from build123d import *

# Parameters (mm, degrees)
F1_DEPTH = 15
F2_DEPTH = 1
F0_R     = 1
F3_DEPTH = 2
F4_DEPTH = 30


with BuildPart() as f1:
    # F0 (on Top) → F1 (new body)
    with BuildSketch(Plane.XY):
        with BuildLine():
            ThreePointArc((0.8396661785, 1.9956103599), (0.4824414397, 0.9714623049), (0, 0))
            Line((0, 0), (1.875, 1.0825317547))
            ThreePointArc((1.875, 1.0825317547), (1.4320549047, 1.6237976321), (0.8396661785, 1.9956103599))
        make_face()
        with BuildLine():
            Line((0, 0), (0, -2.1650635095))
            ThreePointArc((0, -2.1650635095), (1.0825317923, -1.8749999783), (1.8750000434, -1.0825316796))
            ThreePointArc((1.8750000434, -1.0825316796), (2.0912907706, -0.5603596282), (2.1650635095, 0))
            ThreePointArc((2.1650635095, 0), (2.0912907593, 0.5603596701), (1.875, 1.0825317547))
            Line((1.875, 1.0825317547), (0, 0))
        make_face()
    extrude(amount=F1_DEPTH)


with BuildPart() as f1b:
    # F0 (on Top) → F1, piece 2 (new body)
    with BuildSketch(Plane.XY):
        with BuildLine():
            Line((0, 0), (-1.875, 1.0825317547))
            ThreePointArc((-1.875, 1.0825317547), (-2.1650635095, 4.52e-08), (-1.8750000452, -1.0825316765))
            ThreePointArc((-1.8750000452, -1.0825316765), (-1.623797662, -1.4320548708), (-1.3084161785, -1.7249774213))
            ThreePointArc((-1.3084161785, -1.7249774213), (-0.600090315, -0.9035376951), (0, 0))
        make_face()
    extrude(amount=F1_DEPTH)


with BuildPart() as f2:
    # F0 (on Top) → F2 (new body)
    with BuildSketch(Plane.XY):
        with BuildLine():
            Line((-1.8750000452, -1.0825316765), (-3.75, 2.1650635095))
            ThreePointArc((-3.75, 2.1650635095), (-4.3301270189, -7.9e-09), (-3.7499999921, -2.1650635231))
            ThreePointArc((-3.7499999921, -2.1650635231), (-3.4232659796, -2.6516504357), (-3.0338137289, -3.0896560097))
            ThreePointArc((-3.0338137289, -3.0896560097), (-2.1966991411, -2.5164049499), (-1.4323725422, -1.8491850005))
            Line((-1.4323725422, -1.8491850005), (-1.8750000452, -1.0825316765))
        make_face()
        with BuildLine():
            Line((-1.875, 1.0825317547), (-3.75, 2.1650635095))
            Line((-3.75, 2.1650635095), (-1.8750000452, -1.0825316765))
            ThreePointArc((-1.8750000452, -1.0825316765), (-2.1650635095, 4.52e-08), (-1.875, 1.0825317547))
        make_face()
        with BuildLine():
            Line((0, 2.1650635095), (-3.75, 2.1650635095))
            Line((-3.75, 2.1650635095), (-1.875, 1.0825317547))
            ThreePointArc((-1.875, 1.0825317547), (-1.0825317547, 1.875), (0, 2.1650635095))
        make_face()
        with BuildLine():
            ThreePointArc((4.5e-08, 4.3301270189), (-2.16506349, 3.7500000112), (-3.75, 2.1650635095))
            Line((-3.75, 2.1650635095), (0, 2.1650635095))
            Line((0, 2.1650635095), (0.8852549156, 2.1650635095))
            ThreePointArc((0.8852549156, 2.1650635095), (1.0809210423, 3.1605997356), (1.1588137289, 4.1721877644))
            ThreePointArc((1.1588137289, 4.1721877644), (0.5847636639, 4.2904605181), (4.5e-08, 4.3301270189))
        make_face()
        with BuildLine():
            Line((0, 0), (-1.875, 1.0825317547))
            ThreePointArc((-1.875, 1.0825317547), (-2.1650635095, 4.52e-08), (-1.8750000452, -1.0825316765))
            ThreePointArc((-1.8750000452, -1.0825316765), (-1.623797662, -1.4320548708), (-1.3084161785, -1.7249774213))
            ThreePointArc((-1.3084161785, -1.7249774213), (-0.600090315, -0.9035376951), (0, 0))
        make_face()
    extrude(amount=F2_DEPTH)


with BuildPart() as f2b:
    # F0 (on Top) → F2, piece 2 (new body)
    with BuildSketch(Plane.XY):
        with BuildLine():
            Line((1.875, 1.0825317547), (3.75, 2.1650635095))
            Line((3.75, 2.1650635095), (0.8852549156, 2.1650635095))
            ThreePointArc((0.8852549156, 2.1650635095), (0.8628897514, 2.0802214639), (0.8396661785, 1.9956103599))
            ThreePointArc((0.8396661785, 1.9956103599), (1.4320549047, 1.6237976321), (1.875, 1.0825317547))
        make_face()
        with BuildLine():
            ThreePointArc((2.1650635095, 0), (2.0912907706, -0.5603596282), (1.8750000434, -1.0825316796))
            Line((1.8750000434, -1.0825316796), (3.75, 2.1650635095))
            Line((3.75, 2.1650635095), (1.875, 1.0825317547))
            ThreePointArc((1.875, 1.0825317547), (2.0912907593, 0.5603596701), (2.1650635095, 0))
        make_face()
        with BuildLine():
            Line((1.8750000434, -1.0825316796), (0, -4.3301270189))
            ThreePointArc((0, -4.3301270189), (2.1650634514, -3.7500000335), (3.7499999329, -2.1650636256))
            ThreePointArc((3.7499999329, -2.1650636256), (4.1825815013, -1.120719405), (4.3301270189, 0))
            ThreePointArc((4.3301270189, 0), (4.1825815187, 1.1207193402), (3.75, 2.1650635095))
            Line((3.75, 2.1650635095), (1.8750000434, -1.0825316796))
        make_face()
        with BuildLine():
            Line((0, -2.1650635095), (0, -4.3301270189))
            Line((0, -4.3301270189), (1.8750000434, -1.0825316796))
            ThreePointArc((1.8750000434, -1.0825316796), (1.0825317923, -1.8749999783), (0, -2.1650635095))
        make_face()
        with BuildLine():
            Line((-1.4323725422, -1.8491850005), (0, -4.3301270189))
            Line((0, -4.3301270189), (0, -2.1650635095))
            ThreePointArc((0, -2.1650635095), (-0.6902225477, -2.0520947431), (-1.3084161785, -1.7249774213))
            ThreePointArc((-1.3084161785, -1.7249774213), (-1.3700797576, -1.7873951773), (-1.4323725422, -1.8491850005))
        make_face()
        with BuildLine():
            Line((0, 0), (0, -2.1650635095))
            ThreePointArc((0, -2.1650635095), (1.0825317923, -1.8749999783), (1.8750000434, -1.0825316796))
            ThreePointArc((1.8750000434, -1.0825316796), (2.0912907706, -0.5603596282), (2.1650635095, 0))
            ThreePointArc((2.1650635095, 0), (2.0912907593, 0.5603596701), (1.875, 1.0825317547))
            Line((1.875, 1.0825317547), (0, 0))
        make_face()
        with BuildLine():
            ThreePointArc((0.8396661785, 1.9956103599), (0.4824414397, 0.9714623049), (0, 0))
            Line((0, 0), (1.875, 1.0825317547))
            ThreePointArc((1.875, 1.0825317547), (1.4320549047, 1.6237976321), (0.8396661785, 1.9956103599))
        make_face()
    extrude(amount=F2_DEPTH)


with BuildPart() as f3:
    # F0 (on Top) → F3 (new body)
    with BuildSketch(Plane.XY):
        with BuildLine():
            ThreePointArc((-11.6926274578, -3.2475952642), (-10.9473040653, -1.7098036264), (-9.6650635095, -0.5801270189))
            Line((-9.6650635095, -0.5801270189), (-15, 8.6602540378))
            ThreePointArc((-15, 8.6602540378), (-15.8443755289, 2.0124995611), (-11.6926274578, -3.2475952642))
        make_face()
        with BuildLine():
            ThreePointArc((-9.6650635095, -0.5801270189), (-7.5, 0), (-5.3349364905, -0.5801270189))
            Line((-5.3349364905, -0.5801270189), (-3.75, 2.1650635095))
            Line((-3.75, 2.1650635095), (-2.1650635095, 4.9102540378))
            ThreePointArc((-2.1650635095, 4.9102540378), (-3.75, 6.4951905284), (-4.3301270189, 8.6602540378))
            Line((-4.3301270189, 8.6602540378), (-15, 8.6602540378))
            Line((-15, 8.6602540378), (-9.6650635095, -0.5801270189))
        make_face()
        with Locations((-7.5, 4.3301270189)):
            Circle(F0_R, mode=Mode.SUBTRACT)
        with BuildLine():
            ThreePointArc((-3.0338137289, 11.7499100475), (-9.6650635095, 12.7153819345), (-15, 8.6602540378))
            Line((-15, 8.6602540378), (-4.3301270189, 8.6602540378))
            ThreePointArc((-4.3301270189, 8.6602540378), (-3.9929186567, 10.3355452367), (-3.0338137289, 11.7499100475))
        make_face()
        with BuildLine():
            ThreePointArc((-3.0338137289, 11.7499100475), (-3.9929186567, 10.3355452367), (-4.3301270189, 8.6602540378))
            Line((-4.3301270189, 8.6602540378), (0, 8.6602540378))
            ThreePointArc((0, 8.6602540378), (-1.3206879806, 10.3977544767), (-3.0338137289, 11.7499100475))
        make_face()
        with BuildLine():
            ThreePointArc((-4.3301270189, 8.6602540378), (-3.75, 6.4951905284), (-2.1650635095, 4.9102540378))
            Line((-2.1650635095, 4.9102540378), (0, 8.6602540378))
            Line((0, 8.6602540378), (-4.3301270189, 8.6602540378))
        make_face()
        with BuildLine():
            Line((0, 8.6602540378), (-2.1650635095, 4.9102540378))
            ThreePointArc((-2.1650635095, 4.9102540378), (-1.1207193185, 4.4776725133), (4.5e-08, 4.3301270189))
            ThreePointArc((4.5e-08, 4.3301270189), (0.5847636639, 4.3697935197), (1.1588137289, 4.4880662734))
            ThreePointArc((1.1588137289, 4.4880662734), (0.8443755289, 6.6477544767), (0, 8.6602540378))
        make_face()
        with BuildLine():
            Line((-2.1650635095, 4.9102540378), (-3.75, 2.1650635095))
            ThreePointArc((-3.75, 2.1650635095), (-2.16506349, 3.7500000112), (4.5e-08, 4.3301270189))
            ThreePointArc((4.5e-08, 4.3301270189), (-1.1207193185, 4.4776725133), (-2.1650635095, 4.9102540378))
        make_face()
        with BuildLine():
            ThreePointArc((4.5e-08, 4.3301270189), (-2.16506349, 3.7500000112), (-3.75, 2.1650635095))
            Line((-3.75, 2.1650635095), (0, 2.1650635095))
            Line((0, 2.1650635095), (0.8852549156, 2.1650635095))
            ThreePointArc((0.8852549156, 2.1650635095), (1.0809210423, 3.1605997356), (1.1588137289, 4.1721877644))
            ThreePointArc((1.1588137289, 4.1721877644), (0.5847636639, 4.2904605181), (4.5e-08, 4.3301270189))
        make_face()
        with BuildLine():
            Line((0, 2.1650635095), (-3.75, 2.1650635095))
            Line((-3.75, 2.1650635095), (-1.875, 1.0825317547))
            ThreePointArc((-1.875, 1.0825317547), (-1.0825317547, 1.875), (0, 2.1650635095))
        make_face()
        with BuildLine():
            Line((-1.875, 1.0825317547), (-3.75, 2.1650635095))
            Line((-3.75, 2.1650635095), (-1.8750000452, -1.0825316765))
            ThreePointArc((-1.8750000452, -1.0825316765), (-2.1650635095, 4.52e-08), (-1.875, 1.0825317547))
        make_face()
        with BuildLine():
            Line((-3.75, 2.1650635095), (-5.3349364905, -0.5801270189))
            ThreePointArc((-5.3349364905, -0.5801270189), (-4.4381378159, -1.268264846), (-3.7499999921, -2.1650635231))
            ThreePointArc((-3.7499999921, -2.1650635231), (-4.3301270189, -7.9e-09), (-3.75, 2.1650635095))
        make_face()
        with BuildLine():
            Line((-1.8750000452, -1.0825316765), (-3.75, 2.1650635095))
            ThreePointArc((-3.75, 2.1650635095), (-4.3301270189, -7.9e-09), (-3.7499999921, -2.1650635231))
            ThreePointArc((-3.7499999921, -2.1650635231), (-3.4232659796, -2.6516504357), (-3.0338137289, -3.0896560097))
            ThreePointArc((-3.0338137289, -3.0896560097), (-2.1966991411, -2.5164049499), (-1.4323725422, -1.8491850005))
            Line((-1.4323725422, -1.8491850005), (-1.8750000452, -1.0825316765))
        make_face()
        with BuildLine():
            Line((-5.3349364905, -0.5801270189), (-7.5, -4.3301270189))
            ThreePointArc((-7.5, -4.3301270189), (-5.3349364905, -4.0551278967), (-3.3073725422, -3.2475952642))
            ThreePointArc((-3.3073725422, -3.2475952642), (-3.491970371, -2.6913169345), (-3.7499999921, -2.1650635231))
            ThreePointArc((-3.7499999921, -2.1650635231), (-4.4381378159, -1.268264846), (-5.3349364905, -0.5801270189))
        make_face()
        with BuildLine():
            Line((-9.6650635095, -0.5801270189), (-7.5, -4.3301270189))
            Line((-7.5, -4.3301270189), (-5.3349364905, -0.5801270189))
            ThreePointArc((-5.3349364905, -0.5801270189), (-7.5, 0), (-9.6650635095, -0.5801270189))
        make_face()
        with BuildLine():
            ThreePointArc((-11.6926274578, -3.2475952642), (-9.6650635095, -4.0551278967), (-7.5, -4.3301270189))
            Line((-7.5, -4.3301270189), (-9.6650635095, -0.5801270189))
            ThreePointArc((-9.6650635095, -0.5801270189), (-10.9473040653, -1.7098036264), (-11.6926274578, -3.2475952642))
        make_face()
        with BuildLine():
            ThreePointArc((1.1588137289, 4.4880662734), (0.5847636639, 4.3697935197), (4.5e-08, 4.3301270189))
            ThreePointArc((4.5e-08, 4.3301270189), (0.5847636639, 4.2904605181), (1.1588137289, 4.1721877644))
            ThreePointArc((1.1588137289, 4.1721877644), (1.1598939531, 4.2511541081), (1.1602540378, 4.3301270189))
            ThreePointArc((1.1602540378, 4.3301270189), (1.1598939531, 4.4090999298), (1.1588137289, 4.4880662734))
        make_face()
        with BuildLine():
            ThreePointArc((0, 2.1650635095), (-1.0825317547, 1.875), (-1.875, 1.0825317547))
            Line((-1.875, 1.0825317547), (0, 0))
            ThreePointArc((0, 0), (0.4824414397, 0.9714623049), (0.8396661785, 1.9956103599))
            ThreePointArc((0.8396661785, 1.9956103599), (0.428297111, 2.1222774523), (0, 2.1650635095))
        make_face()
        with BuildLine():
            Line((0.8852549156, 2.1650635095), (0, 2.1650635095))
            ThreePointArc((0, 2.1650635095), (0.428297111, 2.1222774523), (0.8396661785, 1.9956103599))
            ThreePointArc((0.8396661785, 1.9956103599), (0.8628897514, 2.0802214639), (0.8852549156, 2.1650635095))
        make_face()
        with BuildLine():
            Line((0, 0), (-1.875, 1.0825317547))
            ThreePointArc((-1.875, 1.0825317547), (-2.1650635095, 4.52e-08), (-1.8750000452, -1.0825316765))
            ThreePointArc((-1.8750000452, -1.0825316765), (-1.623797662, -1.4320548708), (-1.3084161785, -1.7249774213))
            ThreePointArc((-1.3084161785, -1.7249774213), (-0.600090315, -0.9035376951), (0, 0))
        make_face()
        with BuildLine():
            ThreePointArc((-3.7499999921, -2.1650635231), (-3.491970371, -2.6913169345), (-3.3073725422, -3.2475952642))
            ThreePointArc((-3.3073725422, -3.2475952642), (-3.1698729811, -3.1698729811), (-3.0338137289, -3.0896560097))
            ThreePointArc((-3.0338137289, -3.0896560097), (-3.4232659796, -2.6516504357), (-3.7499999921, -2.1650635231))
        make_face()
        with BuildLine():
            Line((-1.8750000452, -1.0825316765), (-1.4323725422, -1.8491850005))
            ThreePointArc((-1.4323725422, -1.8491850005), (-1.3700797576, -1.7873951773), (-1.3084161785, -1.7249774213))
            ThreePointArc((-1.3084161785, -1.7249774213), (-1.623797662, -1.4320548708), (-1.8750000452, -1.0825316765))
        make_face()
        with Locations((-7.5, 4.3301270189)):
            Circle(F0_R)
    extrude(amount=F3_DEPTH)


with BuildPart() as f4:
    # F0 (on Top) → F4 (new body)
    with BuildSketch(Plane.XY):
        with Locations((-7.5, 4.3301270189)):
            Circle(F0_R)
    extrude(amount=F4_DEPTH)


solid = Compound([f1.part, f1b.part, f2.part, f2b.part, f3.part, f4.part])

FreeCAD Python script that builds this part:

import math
import FreeCAD as App
import Part
import Sketcher

V = App.Vector
Q = App.Units.Quantity

doc = App.newDocument("Part")
body = doc.addObject("PartDesign::Body", "Body")

sketch1 = body.newObject("Sketcher::SketchObject", "Sketch")
sketch1.AttachmentSupport = (doc.getObject("XY_Plane"), [""])
sketch1.MapMode = "FlatFace"
sketch1.addGeometry([
    Part.ArcOfCircle(Part.Circle(V(-7.5, 4.3, 0), V(0, 0, 1), 8.7), math.radians(-30), math.radians(-15.64)),
    Part.LineSegment(V(0, 0, 0), V(0, -2.2, 0)),
    Part.ArcOfCircle(Part.Circle(V(0, 0, 0), V(0, 0, 1), 2.2), math.radians(-90), math.radians(-30)),
    Part.ArcOfCircle(Part.Circle(V(0, 0, 0), V(0, 0, 1), 2.2), math.radians(-30), math.radians(0)),
    Part.ArcOfCircle(Part.Circle(V(0, 0, 0), V(0, 0, 1), 2.2), math.radians(0), math.radians(30)),
    Part.ArcOfCircle(Part.Circle(V(0, 0, 0), V(0, 0, 1), 2.2), math.radians(30), math.radians(67)),
], False)
sketch1.addConstraint([
    Sketcher.Constraint("Coincident", 0, 1, 1, 1),
    Sketcher.Constraint("Coincident", 1, 2, 2, 1),
    Sketcher.Constraint("Tangent", 2, 2, 3, 1),
    Sketcher.Constraint("Tangent", 3, 2, 4, 1),
    Sketcher.Constraint("Tangent", 4, 2, 5, 1),
    Sketcher.Constraint("Coincident", 5, 2, 0, 2),
    Sketcher.Constraint("Vertical", 1),
    Sketcher.Constraint("Coincident", 2, 3, -1, 1),
    Sketcher.Constraint("Coincident", 4, 3, -1, 1),
    Sketcher.Constraint("Coincident", 0, 1, -1, 1),
    Sketcher.Constraint("Equal", 4, 5),
    Sketcher.Constraint("PointOnObject", 3, 2, -1),
    Sketcher.Constraint("Vertical", 2, 2, 4, 2),
    Sketcher.Constraint("DistanceX", 0, 3, -1, 1, Q("7.5 mm")),
    Sketcher.Constraint("DistanceX", -1, 1, 2, 2, Q("1.875 mm")),
    Sketcher.Constraint("Radius", 0, Q("8.660254 mm")),
    Sketcher.Constraint("Radius", 2, Q("2.165064 mm")),
])
pad1 = body.newObject("PartDesign::Pad", "Pad")
pad1.Profile = sketch1
pad1.Length = 15
body2 = doc.addObject("PartDesign::Body", "Body001")

sketch2 = body2.newObject("Sketcher::SketchObject", "Sketch001")
sketch2.AttachmentSupport = (doc.getObject("XY_Plane001"), [""])
sketch2.MapMode = "FlatFace"
sketch2.addGeometry([
    Part.LineSegment(V(0, 0, 0), V(-1.9, 1.1, 0)),
    Part.ArcOfCircle(Part.Circle(V(0, 0, 0), V(0, 0, 1), 2.2), math.radians(150), math.radians(233)),
    Part.ArcOfCircle(Part.Circle(V(-7.5, 4.3, 0), V(0, 0, 1), 8.7), math.radians(-44.36), math.radians(-30)),
], False)
sketch2.addConstraint([
    Sketcher.Constraint("Coincident", 0, 2, 1, 1),
    Sketcher.Constraint("Coincident", 1, 2, 2, 1),
    Sketcher.Constraint("Coincident", 2, 2, 0, 1),
    Sketcher.Constraint("Coincident", 1, 3, -1, 1),
    Sketcher.Constraint("Coincident", 2, 2, -1, 1),
    Sketcher.Constraint("Angle", 0, Q("150 deg")),
    Sketcher.Constraint("DistanceX", 2, 3, -1, 1, Q("7.5 mm")),
    Sketcher.Constraint("DistanceX", 0, 2, -1, 1, Q("1.875 mm")),
    Sketcher.Constraint("Radius", 2, Q("8.660254 mm")),
])
pad2 = body2.newObject("PartDesign::Pad", "Pad001")
pad2.Profile = sketch2
pad2.Length = 15
body3 = doc.addObject("PartDesign::Body", "Body002")

sketch3 = body3.newObject("Sketcher::SketchObject", "Sketch002")
sketch3.AttachmentSupport = (doc.getObject("XY_Plane002"), [""])
sketch3.MapMode = "FlatFace"
sketch3.addGeometry([
    Part.ArcOfCircle(Part.Circle(V(0, 0, 0), V(0, 0, 1), 4.3), math.radians(150), math.radians(210)),
    Part.ArcOfCircle(Part.Circle(V(0, 0, 0), V(0, 0, 1), 4.3), math.radians(-150), math.radians(-134.48)),
    Part.ArcOfCircle(Part.Circle(V(-7.5, 4.3, 0), V(0, 0, 1), 8.7), math.radians(-58.96), math.radians(-45.52)),
    Part.LineSegment(V(-1.4, -1.8, 0), V(-1.9, -1.1, 0)),
    Part.ArcOfCircle(Part.Circle(V(0, 0, 0), V(0, 0, 1), 2.2), math.radians(-150), math.radians(-127)),
    Part.ArcOfCircle(Part.Circle(V(-7.5, 4.3, 0), V(0, 0, 1), 8.7), math.radians(-44.36), math.radians(-30)),
    Part.LineSegment(V(0, 0, 0), V(-1.9, 1.1, 0)),
    Part.ArcOfCircle(Part.Circle(V(0, 0, 0), V(0, 0, 1), 2.2), math.radians(90), math.radians(150)),
    Part.LineSegment(V(0, 2.2, 0), V(0.9, 2.2, 0)),
    Part.ArcOfCircle(Part.Circle(V(-7.5, 4.3, 0), V(0, 0, 1), 8.7), math.radians(-14.48), math.radians(-1.04)),
    Part.ArcOfCircle(Part.Circle(V(0, 0, 0), V(0, 0, 1), 4.3), math.radians(74.48), math.radians(90)),
    Part.ArcOfCircle(Part.Circle(V(0, 0, 0), V(0, 0, 1), 4.3), math.radians(90), math.radians(150)),
], False)
sketch3.addConstraint([
    Sketcher.Constraint("Tangent", 0, 2, 1, 1),
    Sketcher.Constraint("Coincident", 1, 2, 2, 1),
    Sketcher.Constraint("Coincident", 2, 2, 3, 1),
    Sketcher.Constraint("Tangent", 3, 2, 4, 1),
    Sketcher.Constraint("Coincident", 4, 2, 5, 1),
    Sketcher.Constraint("Coincident", 5, 2, 6, 1),
    Sketcher.Constraint("Coincident", 6, 2, 7, 2),
    Sketcher.Constraint("Tangent", 7, 1, 8, 1),
    Sketcher.Constraint("Coincident", 8, 2, 9, 1),
    Sketcher.Constraint("Coincident", 9, 2, 10, 1),
    Sketcher.Constraint("Tangent", 10, 2, 11, 1),
    Sketcher.Constraint("Tangent", 11, 2, 0, 1),
    Sketcher.Constraint("Horizontal", 8),
    Sketcher.Constraint("Coincident", 0, 3, -1, 1),
    Sketcher.Constraint("Coincident", 4, 3, -1, 1),
    Sketcher.Constraint("Coincident", 7, 3, -1, 1),
    Sketcher.Constraint("Coincident", 10, 3, -1, 1),
    Sketcher.Constraint("Coincident", 5, 2, -1, 1),
    Sketcher.Constraint("Coincident", 5, 3, 2, 3),
    Sketcher.Constraint("Coincident", 9, 3, 2, 3),
    Sketcher.Constraint("Equal", 0, 1),
    Sketcher.Constraint("Equal", 2, 5),
    Sketcher.Constraint("Equal", 4, 7),
    Sketcher.Constraint("Equal", 5, 9),
    Sketcher.Constraint("PointOnObject", 10, 2, -2),
    Sketcher.Constraint("Horizontal", 9, 3, 10, 2),
    Sketcher.Constraint("Horizontal", 8, 2, 11, 2),
    Sketcher.Constraint("Vertical", 3, 2, 6, 2),
    Sketcher.Constraint("Vertical", 0, 2, 11, 2),
    Sketcher.Constraint("Angle", 3, Q("120 deg")),
    Sketcher.Constraint("DistanceX", 2, 3, -1, 1, Q("7.5 mm")),
    Sketcher.Constraint("DistanceX", 0, 2, -1, 1, Q("3.75 mm")),
    Sketcher.Constraint("DistanceX", 3, 2, -1, 1, Q("1.875 mm")),
])
pad3 = body3.newObject("PartDesign::Pad", "Pad002")
pad3.Profile = sketch3
pad3.Length = 1
body4 = doc.addObject("PartDesign::Body", "Body003")

sketch4 = body4.newObject("Sketcher::SketchObject", "Sketch003")
sketch4.AttachmentSupport = (doc.getObject("XY_Plane003"), [""])
sketch4.MapMode = "FlatFace"
sketch4.addGeometry([
    Part.LineSegment(V(3.75, 2.17, 0), V(0.89, 2.17, 0)),
    Part.ArcOfCircle(Part.Circle(V(-7.5, 4.33, 0), V(0, 0, 1), 8.66), math.radians(-15.64), math.radians(-14.48)),
    Part.ArcOfCircle(Part.Circle(V(-7.5, 4.33, 0), V(0, 0, 1), 8.66), math.radians(-30), math.radians(-15.64)),
    Part.LineSegment(V(0, 0, 0), V(0, -2.17, 0)),
    Part.ArcOfCircle(Part.Circle(V(0, 0, 0), V(0, 0, 1), 2.17), math.radians(-127), math.radians(-90)),
    Part.ArcOfCircle(Part.Circle(V(-7.5, 4.33, 0), V(0, 0, 1), 8.66), math.radians(-45.52), math.radians(-44.36)),
    Part.LineSegment(V(-1.43, -1.85, 0), V(0, -4.33, 0)),
    Part.ArcOfCircle(Part.Circle(V(0, 0, 0), V(0, 0, 1), 4.33), math.radians(-90), math.radians(-30)),
    Part.ArcOfCircle(Part.Circle(V(0, 0, 0), V(0, 0, 1), 4.33), math.radians(-30), math.radians(0)),
    Part.ArcOfCircle(Part.Circle(V(0, 0, 0), V(0, 0, 1), 4.33), math.radians(0), math.radians(30)),
], False)
sketch4.addConstraint([
    Sketcher.Constraint("Coincident", 0, 2, 1, 2),
    Sketcher.Constraint("Tangent", 1, 1, 2, 2),
    Sketcher.Constraint("Coincident", 2, 1, 3, 1),
    Sketcher.Constraint("Coincident", 3, 2, 4, 2),
    Sketcher.Constraint("Coincident", 4, 1, 5, 2),
    Sketcher.Constraint("Coincident", 5, 1, 6, 1),
    Sketcher.Constraint("Coincident", 6, 2, 7, 1),
    Sketcher.Constraint("Tangent", 7, 2, 8, 1),
    Sketcher.Constraint("Tangent", 8, 2, 9, 1),
    Sketcher.Constraint("Coincident", 9, 2, 0, 1),
    Sketcher.Constraint("Horizontal", 0),
    Sketcher.Constraint("Vertical", 3),
    Sketcher.Constraint("Coincident", 4, 3, -1, 1),
    Sketcher.Constraint("Coincident", 7, 3, -1, 1),
    Sketcher.Constraint("Coincident", 9, 3, -1, 1),
    Sketcher.Constraint("Coincident", 2, 1, -1, 1),
    Sketcher.Constraint("Coincident", 5, 3, 1, 3),
    Sketcher.Constraint("Equal", 1, 2),
    Sketcher.Constraint("Equal", 2, 5),
    Sketcher.Constraint("PointOnObject", 6, 2, -2),
    Sketcher.Constraint("PointOnObject", 8, 2, -1),
    Sketcher.Constraint("Horizontal", 3, 2, 7, 2),
    Sketcher.Constraint("Vertical", 7, 2, 9, 2),
    Sketcher.Constraint("Angle", 6, Q("-60 deg")),
    Sketcher.Constraint("DistanceX", 1, 3, -1, 1, Q("7.499999 mm")),
    Sketcher.Constraint("DistanceX", -1, 1, 7, 2, Q("3.75 mm")),
    Sketcher.Constraint("Radius", 1, Q("8.660253 mm")),
    Sketcher.Constraint("Radius", 4, Q("2.165064 mm")),
    Sketcher.Constraint("DistanceY", -1, 1, 1, 1, Q("1.99561 mm")),
])
pad4 = body4.newObject("PartDesign::Pad", "Pad003")
pad4.Profile = sketch4
pad4.Length = 1
body5 = doc.addObject("PartDesign::Body", "Body004")

sketch5 = body5.newObject("Sketcher::SketchObject", "Sketch004")
sketch5.AttachmentSupport = (doc.getObject("XY_Plane004"), [""])
sketch5.MapMode = "FlatFace"
sketch5.addGeometry([
    Part.ArcOfCircle(Part.Circle(V(-7.5, 4.33, 0), V(0, 0, 1), 8.66), math.radians(-90), math.radians(-61)),
    Part.ArcOfCircle(Part.Circle(V(-7.5, 4.33, 0), V(0, 0, 1), 8.66), math.radians(-61.04), math.radians(-58.96)),
    Part.ArcOfCircle(Part.Circle(V(-7.5, 4.33, 0), V(0, 0, 1), 8.66), math.radians(-58.96), math.radians(-45.52)),
    Part.ArcOfCircle(Part.Circle(V(-7.5, 4.33, 0), V(0, 0, 1), 8.66), math.radians(-45.52), math.radians(-44.36)),
    Part.ArcOfCircle(Part.Circle(V(-7.5, 4.33, 0), V(0, 0, 1), 8.66), math.radians(-44.36), math.radians(-30)),
    Part.ArcOfCircle(Part.Circle(V(-7.5, 4.33, 0), V(0, 0, 1), 8.66), math.radians(-30), math.radians(-15.64)),
    Part.ArcOfCircle(Part.Circle(V(-7.5, 4.33, 0), V(0, 0, 1), 8.66), math.radians(-15.64), math.radians(-14.48)),
    Part.ArcOfCircle(Part.Circle(V(-7.5, 4.33, 0), V(0, 0, 1), 8.66), math.radians(-14.48), math.radians(-1.04)),
    Part.ArcOfCircle(Part.Circle(V(-7.5, 4.33, 0), V(0, 0, 1), 8.66), math.radians(-1.04), math.radians(0)),
    Part.ArcOfCircle(Part.Circle(V(-7.5, 4.33, 0), V(0, 0, 1), 8.66), math.radians(0), math.radians(1.04)),
    Part.ArcOfCircle(Part.Circle(V(-7.5, 4.33, 0), V(0, 0, 1), 8.66), math.radians(1), math.radians(30)),
    Part.ArcOfCircle(Part.Circle(V(-7.5, 4.33, 0), V(0, 0, 1), 8.66), math.radians(30), math.radians(59)),
    Part.ArcOfCircle(Part.Circle(V(-7.5, 4.33, 0), V(0, 0, 1), 8.66), math.radians(59), math.radians(150)),
    Part.ArcOfCircle(Part.Circle(V(-7.5, 4.33, 0), V(0, 0, 1), 8.66), math.radians(150), math.radians(241)),
    Part.ArcOfCircle(Part.Circle(V(-7.5, 4.33, 0), V(0, 0, 1), 8.66), math.radians(-119), math.radians(-90)),
], False)
sketch5.addConstraint([
    Sketcher.Constraint("Tangent", 0, 2, 1, 1),
    Sketcher.Constraint("Tangent", 1, 2, 2, 1),
    Sketcher.Constraint("Tangent", 2, 2, 3, 1),
    Sketcher.Constraint("Tangent", 3, 2, 4, 1),
    Sketcher.Constraint("Tangent", 4, 2, 5, 1),
    Sketcher.Constraint("Tangent", 5, 2, 6, 1),
    Sketcher.Constraint("Tangent", 6, 2, 7, 1),
    Sketcher.Constraint("Tangent", 7, 2, 8, 1),
    Sketcher.Constraint("Tangent", 8, 2, 9, 1),
    Sketcher.Constraint("Tangent", 9, 2, 10, 1),
    Sketcher.Constraint("Tangent", 10, 2, 11, 1),
    Sketcher.Constraint("Tangent", 11, 2, 12, 1),
    Sketcher.Constraint("Tangent", 12, 2, 13, 1),
    Sketcher.Constraint("Tangent", 13, 2, 14, 1),
    Sketcher.Constraint("Tangent", 14, 2, 0, 1),
    Sketcher.Constraint("Coincident", 4, 2, -1, 1),
    Sketcher.Constraint("Coincident", 2, 3, 0, 3),
    Sketcher.Constraint("Coincident", 4, 3, 0, 3),
    Sketcher.Constraint("Coincident", 6, 3, 0, 3),
    Sketcher.Constraint("Coincident", 8, 3, 0, 3),
    Sketcher.Constraint("Coincident", 10, 3, 0, 3),
    Sketcher.Constraint("Coincident", 12, 3, 0, 3),
    Sketcher.Constraint("PointOnObject", 10, 2, -2),
    Sketcher.Constraint("Horizontal", 14, 3, 8, 2),
    Sketcher.Constraint("Horizontal", 10, 2, 12, 2),
    Sketcher.Constraint("Horizontal", 0, 2, 13, 2),
    Sketcher.Constraint("Vertical", 7, 2, 9, 2),
    Sketcher.Constraint("Vertical", 1, 2, 11, 2),
    Sketcher.Constraint("Vertical", 13, 3, 14, 2),
    Sketcher.Constraint("DistanceX", 12, 2, -1, 1, Q("15 mm")),
    Sketcher.Constraint("Radius", 0, Q("8.660254 mm")),
    Sketcher.Constraint("DistanceX", 0, 2, 2, 2, Q("1.875 mm")),
    Sketcher.Constraint("DistanceX", 6, 2, 8, 2, Q("0.274999 mm")),
    Sketcher.Constraint("DistanceY", -1, 1, 5, 2, Q("1.99561 mm")),
    Sketcher.Constraint("DistanceY", -1, 1, 11, 2, Q("11.74991 mm")),
    Sketcher.Constraint("DistanceX", 0, 2, 1, 2, Q("0.273559 mm")),
    Sketcher.Constraint("DistanceY", 1, 2, 3, 2, Q("1.364679 mm")),
    Sketcher.Constraint("DistanceX", 6, 2, 7, 2, Q("0.273559 mm")),
])
pad5 = body5.newObject("PartDesign::Pad", "Pad004")
pad5.Profile = sketch5
pad5.Length = 2
body6 = doc.addObject("PartDesign::Body", "Body005")

sketch6 = body6.newObject("Sketcher::SketchObject", "Sketch005")
sketch6.AttachmentSupport = (doc.getObject("XY_Plane005"), [""])
sketch6.MapMode = "FlatFace"
sketch6.addGeometry(Part.Circle(V(-7.5, 4.3, 0), V(0, 0, 1), 1), False)
sketch6.addConstraint([
    Sketcher.Constraint("Diameter", 0, Q("2 mm")),
    Sketcher.Constraint("DistanceX", 0, 3, -1, 1, Q("7.5 mm")),
    Sketcher.Constraint("DistanceY", -1, 1, 0, 3, Q("4.330127 mm")),
])
pad6 = body6.newObject("PartDesign::Pad", "Pad005")
pad6.Profile = sketch6
pad6.Length = 30

doc.recompute()
